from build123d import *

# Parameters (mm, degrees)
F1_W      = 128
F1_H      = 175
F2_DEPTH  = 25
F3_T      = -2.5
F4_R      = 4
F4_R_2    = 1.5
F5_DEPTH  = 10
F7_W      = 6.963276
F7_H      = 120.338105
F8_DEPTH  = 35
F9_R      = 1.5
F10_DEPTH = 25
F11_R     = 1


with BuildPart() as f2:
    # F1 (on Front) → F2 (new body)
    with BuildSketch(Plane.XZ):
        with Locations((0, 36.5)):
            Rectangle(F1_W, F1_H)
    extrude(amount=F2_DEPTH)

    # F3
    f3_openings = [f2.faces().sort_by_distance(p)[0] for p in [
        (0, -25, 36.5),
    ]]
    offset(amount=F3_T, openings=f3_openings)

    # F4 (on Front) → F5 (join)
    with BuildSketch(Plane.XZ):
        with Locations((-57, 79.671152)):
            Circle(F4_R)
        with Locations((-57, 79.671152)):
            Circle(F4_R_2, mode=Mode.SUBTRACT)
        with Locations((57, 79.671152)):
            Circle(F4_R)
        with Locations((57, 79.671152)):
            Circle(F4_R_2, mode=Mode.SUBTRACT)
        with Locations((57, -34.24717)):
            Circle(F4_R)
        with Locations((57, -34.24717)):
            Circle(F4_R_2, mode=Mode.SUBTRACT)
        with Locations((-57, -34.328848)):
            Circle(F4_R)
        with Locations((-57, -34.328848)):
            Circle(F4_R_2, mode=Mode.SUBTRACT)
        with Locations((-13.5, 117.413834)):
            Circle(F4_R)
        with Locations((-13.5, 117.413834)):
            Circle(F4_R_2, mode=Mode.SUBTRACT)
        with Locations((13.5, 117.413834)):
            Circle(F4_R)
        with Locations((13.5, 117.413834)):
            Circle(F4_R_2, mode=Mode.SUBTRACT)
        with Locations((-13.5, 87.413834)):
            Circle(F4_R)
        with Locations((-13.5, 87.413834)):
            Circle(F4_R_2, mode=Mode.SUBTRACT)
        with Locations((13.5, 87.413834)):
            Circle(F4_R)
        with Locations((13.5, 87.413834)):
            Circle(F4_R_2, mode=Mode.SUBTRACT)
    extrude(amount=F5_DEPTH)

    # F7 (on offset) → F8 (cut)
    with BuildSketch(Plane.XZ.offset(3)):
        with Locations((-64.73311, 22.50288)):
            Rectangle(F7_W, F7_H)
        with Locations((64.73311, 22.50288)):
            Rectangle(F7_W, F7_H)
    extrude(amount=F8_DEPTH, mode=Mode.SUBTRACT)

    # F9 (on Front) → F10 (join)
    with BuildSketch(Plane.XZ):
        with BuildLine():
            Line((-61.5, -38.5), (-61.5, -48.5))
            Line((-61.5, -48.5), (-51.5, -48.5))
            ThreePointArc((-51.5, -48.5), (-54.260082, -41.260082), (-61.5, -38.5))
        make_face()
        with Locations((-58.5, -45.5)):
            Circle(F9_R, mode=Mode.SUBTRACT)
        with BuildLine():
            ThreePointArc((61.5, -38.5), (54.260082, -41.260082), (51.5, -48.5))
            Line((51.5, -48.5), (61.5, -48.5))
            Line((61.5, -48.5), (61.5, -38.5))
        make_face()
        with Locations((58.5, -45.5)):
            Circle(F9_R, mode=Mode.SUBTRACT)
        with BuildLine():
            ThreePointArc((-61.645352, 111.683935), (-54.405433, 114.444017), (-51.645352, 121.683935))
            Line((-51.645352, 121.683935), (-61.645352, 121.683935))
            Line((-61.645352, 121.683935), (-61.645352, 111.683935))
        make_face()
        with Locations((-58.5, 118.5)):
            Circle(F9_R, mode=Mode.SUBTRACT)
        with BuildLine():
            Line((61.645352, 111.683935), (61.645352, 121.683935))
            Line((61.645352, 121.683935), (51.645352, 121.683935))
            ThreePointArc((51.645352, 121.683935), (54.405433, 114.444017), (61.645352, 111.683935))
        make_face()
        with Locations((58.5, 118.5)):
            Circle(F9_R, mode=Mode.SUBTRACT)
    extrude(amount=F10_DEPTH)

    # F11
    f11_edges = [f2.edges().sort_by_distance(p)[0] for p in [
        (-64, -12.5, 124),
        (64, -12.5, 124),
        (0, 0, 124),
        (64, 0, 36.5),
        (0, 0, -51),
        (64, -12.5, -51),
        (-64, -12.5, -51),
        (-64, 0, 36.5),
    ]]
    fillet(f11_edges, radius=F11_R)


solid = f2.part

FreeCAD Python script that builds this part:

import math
import FreeCAD as App
import Part
import Sketcher
from FreeCAD import Vector
Q = App.Units.Quantity


def edges_at(feature, points):
    """Names of the edges that pass closest to the given points."""
    edges = feature.Shape.Edges
    near = lambda p: min(range(len(edges)), key=lambda i: edges[i].distToShape(Part.Vertex(*p))[0])
    return sorted({f"Edge{near(p) + 1}" for p in points})


def faces_at(feature, points):
    """Names of the faces that lie closest to the given points."""
    faces = feature.Shape.Faces
    near = lambda p: min(range(len(faces)), key=lambda i: faces[i].distToShape(Part.Vertex(*p))[0])
    return sorted({f"Face{near(p) + 1}" for p in points})


def add_polygon(sketch, points):
    """Adds a closed chain of lines whose ends are joined by coincident constraints."""
    first, n = sketch.GeometryCount, len(points)
    for a, b in zip(points, points[1:] + points[:1]):
        sketch.addGeometry(Part.LineSegment(App.Vector(*a, 0), App.Vector(*b, 0)), False)
    for i in range(n):
        sketch.addConstraint(Sketcher.Constraint("Coincident", first + i, 2, first + (i + 1) % n, 1))

doc = App.newDocument("Part")
params = doc.addObject("Spreadsheet::Sheet", "Params")
for row, (alias, value) in enumerate([
    ("sketch1_width", "128 mm"),
    ("sketch1_height", "175 mm"),
    ("pad1_length", "25 mm"),
    ("thickness_wall", "2.5 mm"),
    ("sketch2_diameter", "8 mm"),
    ("sketch2_diameter2", "3 mm"),
    ("pad2_length", "10 mm"),
    ("pocket1_length", "35 mm"),
    ("sketch4_diameter", "3 mm"),
    ("sketch4_width", "10 mm"),
    ("pad3_length", "25 mm"),
    ("fillet_radius", "1 mm"),
], start=1):
    params.set(f"A{row}", alias)
    params.set(f"B{row}", "=" + value)
    params.setAlias(f"B{row}", alias)

body = doc.addObject("PartDesign::Body", "Body")

# Sketch on XZ plane
sketch1 = doc.addObject("Sketcher::SketchObject", "Sketch")
body.addObject(sketch1)
sketch1.AttachmentSupport = (doc.XZ_Plane, [""])
sketch1.MapMode = "FlatFace"
add_polygon(sketch1, [(-64, 124), (-64, -51), (64, -51), (64, 124)])  # lines 0-3
sketch1.addConstraint([
    Sketcher.Constraint("Vertical", 0),
    Sketcher.Constraint("Horizontal", 1),
    Sketcher.Constraint("Vertical", 2),
    Sketcher.Constraint("Horizontal", 3),
    Sketcher.Constraint("DistanceX", 1, 1, 1, 2, Q("128 mm")),
    Sketcher.Constraint("DistanceY", 0, 2, 0, 1, Q("175 mm")),
    Sketcher.Constraint("DistanceX", 0, 2, -1, 1, Q("64 mm")),
    Sketcher.Constraint("DistanceY", 0, 2, -1, 1, Q("51 mm")),
])
sketch1.setExpression("Constraints[8]", "Params.sketch1_width")
sketch1.setExpression("Constraints[9]", "Params.sketch1_height")
pad1 = doc.addObject("PartDesign::Pad", "Pad")
body.addObject(pad1)
pad1.Profile = sketch1
pad1.setExpression("Length", "Params.pad1_length")
doc.recompute()

thickness = doc.addObject("PartDesign::Thickness", "Thickness")
body.addObject(thickness)
thickness.Base = (pad1, faces_at(pad1, [(0, -25, 36.5)]))
thickness.setExpression("Value", "Params.thickness_wall")
thickness.Reversed = True
thickness.Join = "Arc"

# Sketch on XZ plane
sketch2 = doc.addObject("Sketcher::SketchObject", "Sketch001")
body.addObject(sketch2)
sketch2.AttachmentSupport = (doc.XZ_Plane, [""])
sketch2.MapMode = "FlatFace"
sketch2.addGeometry([
    Part.Circle(Vector(-57, 79.671152, 0), Vector(0, 0, 1), 4),  # 0
    Part.Circle(Vector(-57, 79.671152, 0), Vector(0, 0, 1), 1.5),  # 1
    Part.Circle(Vector(57, 79.671152, 0), Vector(0, 0, 1), 4),  # 2
    Part.Circle(Vector(57, 79.671152, 0), Vector(0, 0, 1), 1.5),  # 3
    Part.Circle(Vector(57, -34.24717, 0), Vector(0, 0, 1), 4),  # 4
    Part.Circle(Vector(57, -34.24717, 0), Vector(0, 0, 1), 1.5),  # 5
    Part.Circle(Vector(-57, -34.328848, 0), Vector(0, 0, 1), 4),  # 6
    Part.Circle(Vector(-57, -34.328848, 0), Vector(0, 0, 1), 1.5),  # 7
    Part.Circle(Vector(-13.5, 117.413834, 0), Vector(0, 0, 1), 4),  # 8
    Part.Circle(Vector(-13.5, 117.413834, 0), Vector(0, 0, 1), 1.5),  # 9
    Part.Circle(Vector(13.5, 117.413834, 0), Vector(0, 0, 1), 4),  # 10
    Part.Circle(Vector(13.5, 117.413834, 0), Vector(0, 0, 1), 1.5),  # 11
    Part.Circle(Vector(-13.5, 87.413834, 0), Vector(0, 0, 1), 4),  # 12
    Part.Circle(Vector(-13.5, 87.413834, 0), Vector(0, 0, 1), 1.5),  # 13
    Part.Circle(Vector(13.5, 87.413834, 0), Vector(0, 0, 1), 4),  # 14
    Part.Circle(Vector(13.5, 87.413834, 0), Vector(0, 0, 1), 1.5),  # 15
], False)
sketch2.addConstraint([
    Sketcher.Constraint("Coincident", 1, 3, 0, 3),
    Sketcher.Constraint("Coincident", 3, 3, 2, 3),
    Sketcher.Constraint("Coincident", 5, 3, 4, 3),
    Sketcher.Constraint("Coincident", 7, 3, 6, 3),
    Sketcher.Constraint("Coincident", 9, 3, 8, 3),
    Sketcher.Constraint("Coincident", 11, 3, 10, 3),
    Sketcher.Constraint("Coincident", 13, 3, 12, 3),
    Sketcher.Constraint("Coincident", 15, 3, 14, 3),
    Sketcher.Constraint("Equal", 0, 2),
    Sketcher.Constraint("Equal", 1, 3),
    Sketcher.Constraint("Equal", 2, 4),
    Sketcher.Constraint("Equal", 3, 5),
    Sketcher.Constraint("Equal", 4, 6),
    Sketcher.Constraint("Equal", 5, 7),
    Sketcher.Constraint("Equal", 6, 8),
    Sketcher.Constraint("Equal", 7, 9),
    Sketcher.Constraint("Equal", 8, 10),
    Sketcher.Constraint("Equal", 9, 11),
    Sketcher.Constraint("Equal", 10, 12),
    Sketcher.Constraint("Equal", 11, 13),
    Sketcher.Constraint("Equal", 12, 14),
    Sketcher.Constraint("Equal", 13, 15),
    Sketcher.Constraint("Symmetric", 0, 3, 2, 3, -2),
    Sketcher.Constraint("Symmetric", 8, 3, 10, 3, -2),
    Sketcher.Constraint("Symmetric", 12, 3, 14, 3, -2),
    Sketcher.Constraint("Vertical", 3, 3, 4, 3),
    Sketcher.Constraint("Vertical", 1, 3, 6, 3),
    Sketcher.Constraint("Vertical", 9, 3, 12, 3),
    Sketcher.Constraint("Diameter", 0, Q("8 mm")),
    Sketcher.Constraint("Diameter", 1, Q("3 mm")),
    Sketcher.Constraint("DistanceX", 0, 3, -1, 1, Q("57 mm")),
    Sketcher.Constraint("DistanceY", 6, 3, 0, 3, Q("114 mm")),
    Sketcher.Constraint("DistanceX", 8, 3, 10, 3, Q("27 mm")),
    Sketcher.Constraint("DistanceY", 12, 3, 8, 3, Q("30 mm")),
    Sketcher.Constraint("DistanceY", 4, 3, -1, 1, Q("34.24717 mm")),
    Sketcher.Constraint("DistanceY", 6, 3, 4, 3, Q("0.081678 mm")),
    Sketcher.Constraint("DistanceY", 0, 3, 8, 3, Q("37.742682 mm")),
])
sketch2.setExpression("Constraints[28]", "Params.sketch2_diameter")
sketch2.setExpression("Constraints[29]", "Params.sketch2_diameter2")
pad2 = doc.addObject("PartDesign::Pad", "Pad001")
body.addObject(pad2)
pad2.Profile = sketch2
pad2.setExpression("Length", "Params.pad2_length")

# Sketch on XZ plane
sketch3 = doc.addObject("Sketcher::SketchObject", "Sketch002")
body.addObject(sketch3)
sketch3.AttachmentSupport = (doc.XZ_Plane, [""])
sketch3.MapMode = "FlatFace"
sketch3.AttachmentOffset = App.Placement(Vector(0, 0, 3), App.Rotation())
add_polygon(sketch3, [(-68.214748, 82.671932), (-68.214748, -37.666173), (-61.251472, -37.666173), (-61.251472, 82.671932)])  # lines 0-3
add_polygon(sketch3, [(61.251472, 82.671932), (61.251472, -37.666173), (68.214748, -37.666173), (68.214748, 82.671932)])  # lines 4-7
sketch3.addConstraint([
    Sketcher.Constraint("Vertical", 0),
    Sketcher.Constraint("Horizontal", 1),
    Sketcher.Constraint("Vertical", 2),
    Sketcher.Constraint("Horizontal", 3),
    Sketcher.Constraint("Vertical", 4),
    Sketcher.Constraint("Horizontal", 5),
    Sketcher.Constraint("Vertical", 6),
    Sketcher.Constraint("Horizontal", 7),
    Sketcher.Constraint("Symmetric", 1, 2, 4, 2, -2),
    Sketcher.Constraint("Symmetric", 3, 2, 6, 2, -2),
    Sketcher.Constraint("DistanceX", 1, 1, 1, 2, Q("6.963276 mm")),
    Sketcher.Constraint("DistanceY", 0, 2, 0, 1, Q("120.338105 mm")),
    Sketcher.Constraint("DistanceX", 0, 2, -1, 1, Q("68.214748 mm")),
    Sketcher.Constraint("DistanceY", 0, 2, -1, 1, Q("37.666173 mm")),
])
pocket1 = doc.addObject("PartDesign::Pocket", "Pocket")
body.addObject(pocket1)
pocket1.Profile = sketch3
pocket1.setExpression("Length", "Params.pocket1_length")
pocket1.Reversed = True

# Sketch on XZ plane
sketch4 = doc.addObject("Sketcher::SketchObject", "Sketch003")
body.addObject(sketch4)
sketch4.AttachmentSupport = (doc.XZ_Plane, [""])
sketch4.MapMode = "FlatFace"
sketch4.addGeometry([
    Part.LineSegment(Vector(-61.5, -38.5, 0), Vector(-61.5, -48.5, 0)),  # 0
    Part.LineSegment(Vector(-61.5, -48.5, 0), Vector(-51.5, -48.5, 0)),  # 1
    Part.ArcOfCircle(Part.Circle(Vector(-60.960602, -47.960602, 0), Vector(0, 0, 1), 9.475967), math.radians(-3.263194), math.radians(93.263194)),  # 2
    Part.Circle(Vector(-58.5, -45.5, 0), Vector(0, 0, 1), 1.5),  # 3
    Part.ArcOfCircle(Part.Circle(Vector(60.960602, -47.960602, 0), Vector(0, 0, 1), 9.475967), math.radians(86.736806), math.radians(183.263194)),  # 4
    Part.LineSegment(Vector(51.5, -48.5, 0), Vector(61.5, -48.5, 0)),  # 5
    Part.LineSegment(Vector(61.5, -48.5, 0), Vector(61.5, -38.5, 0)),  # 6
    Part.Circle(Vector(58.5, -45.5, 0), Vector(0, 0, 1), 1.5),  # 7
    Part.ArcOfCircle(Part.Circle(Vector(-61.105953, 121.144536, 0), Vector(0, 0, 1), 9.475965), math.radians(-93.263204), math.radians(3.263204)),  # 8
    Part.LineSegment(Vector(-51.645352, 121.683935, 0), Vector(-61.645352, 121.683935, 0)),  # 9
    Part.LineSegment(Vector(-61.645352, 121.683935, 0), Vector(-61.645352, 111.683935, 0)),  # 10
    Part.Circle(Vector(-58.5, 118.5, 0), Vector(0, 0, 1), 1.5),  # 11
    Part.LineSegment(Vector(61.645352, 111.683935, 0), Vector(61.645352, 121.683935, 0)),  # 12
    Part.LineSegment(Vector(61.645352, 121.683935, 0), Vector(51.645352, 121.683935, 0)),  # 13
    Part.ArcOfCircle(Part.Circle(Vector(61.105953, 121.144536, 0), Vector(0, 0, 1), 9.475965), math.radians(176.736796), math.radians(273.263204)),  # 14
    Part.Circle(Vector(58.5, 118.5, 0), Vector(0, 0, 1), 1.5),  # 15
], False)
sketch4.addConstraint([
    Sketcher.Constraint("Coincident", 0, 2, 1, 1),
    Sketcher.Constraint("Coincident", 1, 2, 2, 1),
    Sketcher.Constraint("Coincident", 2, 2, 0, 1),
    Sketcher.Constraint("Coincident", 4, 2, 5, 1),
    Sketcher.Constraint("Coincident", 5, 2, 6, 1),
    Sketcher.Constraint("Coincident", 6, 2, 4, 1),
    Sketcher.Constraint("Coincident", 8, 2, 9, 1),
    Sketcher.Constraint("Coincident", 9, 2, 10, 1),
    Sketcher.Constraint("Coincident", 10, 2, 8, 1),
    Sketcher.Constraint("Coincident", 12, 2, 13, 1),
    Sketcher.Constraint("Coincident", 13, 2, 14, 1),
    Sketcher.Constraint("Coincident", 14, 2, 12, 1),
    Sketcher.Constraint("Vertical", 0),
    Sketcher.Constraint("Horizontal", 1),
    Sketcher.Constraint("Horizontal", 5),
    Sketcher.Constraint("Vertical", 6),
    Sketcher.Constraint("Horizontal", 9),
    Sketcher.Constraint("Vertical", 10),
    Sketcher.Constraint("Vertical", 12),
    Sketcher.Constraint("Horizontal", 13),
    Sketcher.Constraint("Equal", 2, 4),
    Sketcher.Constraint("Equal", 3, 7),
    Sketcher.Constraint("Equal", 4, 8),
    Sketcher.Constraint("Equal", 7, 11),
    Sketcher.Constraint("Equal", 8, 14),
    Sketcher.Constraint("Equal", 11, 15),
    Sketcher.Constraint("Symmetric", 2, 3, 4, 3, -2),
    Sketcher.Constraint("Symmetric", 3, 3, 7, 3, -2),
    Sketcher.Constraint("Symmetric", 8, 3, 14, 3, -2),
    Sketcher.Constraint("Symmetric", 11, 3, 15, 3, -2),
    Sketcher.Constraint("Symmetric", 0, 2, 5, 2, -2),
    Sketcher.Constraint("Symmetric", 9, 2, 12, 2, -2),
    Sketcher.Constraint("Vertical", 3, 3, 11, 3),
    Sketcher.Constraint("Equal", 5, 9),
    Sketcher.Constraint("Equal", 13, 0),
    Sketcher.Constraint("Equal", 6, 10),
    Sketcher.Constraint("Diameter", 3, Q("3 mm")),
    Sketcher.Constraint("DistanceX", 1, 1, 1, 2, Q("10 mm")),
    Sketcher.Constraint("DistanceX", 3, 3, 7, 3, Q("117 mm")),
    Sketcher.Constraint("DistanceY", 3, 3, 11, 3, Q("164 mm")),
    Sketcher.Constraint("DistanceX", 0, 2, 3, 3, Q("3 mm")),
    Sketcher.Constraint("DistanceY", 0, 2, 3, 3, Q("3 mm")),
    Sketcher.Constraint("DistanceY", 3, 3, -1, 1, Q("45.5 mm")),
    Sketcher.Constraint("Radius", 2, Q("9.475967 mm")),
    Sketcher.Constraint("DistanceX", -1, 1, 14, 2, Q("61.645352 mm")),
    Sketcher.Constraint("DistanceY", 2, 3, 8, 3, Q("169.105138 mm")),
])
sketch4.setExpression("Constraints[36]", "Params.sketch4_diameter")
sketch4.setExpression("Constraints[37]", "Params.sketch4_width")
pad3 = doc.addObject("PartDesign::Pad", "Pad002")
body.addObject(pad3)
pad3.Profile = sketch4
pad3.setExpression("Length", "Params.pad3_length")
doc.recompute()

fillet = doc.addObject("PartDesign::Fillet", "Fillet")
body.addObject(fillet)
fillet.Base = (pad3, edges_at(pad3, [
    (-64, -12.5, 124),
    (64, -12.5, 124),
    (0, 0, 124),
    (64, 0, 36.5),
    (0, 0, -51),
    (64, -12.5, -51),
    (-64, -12.5, -51),
    (-64, 0, 36.5),
]))
fillet.setExpression("Radius", "Params.fillet_radius")

doc.recompute()
